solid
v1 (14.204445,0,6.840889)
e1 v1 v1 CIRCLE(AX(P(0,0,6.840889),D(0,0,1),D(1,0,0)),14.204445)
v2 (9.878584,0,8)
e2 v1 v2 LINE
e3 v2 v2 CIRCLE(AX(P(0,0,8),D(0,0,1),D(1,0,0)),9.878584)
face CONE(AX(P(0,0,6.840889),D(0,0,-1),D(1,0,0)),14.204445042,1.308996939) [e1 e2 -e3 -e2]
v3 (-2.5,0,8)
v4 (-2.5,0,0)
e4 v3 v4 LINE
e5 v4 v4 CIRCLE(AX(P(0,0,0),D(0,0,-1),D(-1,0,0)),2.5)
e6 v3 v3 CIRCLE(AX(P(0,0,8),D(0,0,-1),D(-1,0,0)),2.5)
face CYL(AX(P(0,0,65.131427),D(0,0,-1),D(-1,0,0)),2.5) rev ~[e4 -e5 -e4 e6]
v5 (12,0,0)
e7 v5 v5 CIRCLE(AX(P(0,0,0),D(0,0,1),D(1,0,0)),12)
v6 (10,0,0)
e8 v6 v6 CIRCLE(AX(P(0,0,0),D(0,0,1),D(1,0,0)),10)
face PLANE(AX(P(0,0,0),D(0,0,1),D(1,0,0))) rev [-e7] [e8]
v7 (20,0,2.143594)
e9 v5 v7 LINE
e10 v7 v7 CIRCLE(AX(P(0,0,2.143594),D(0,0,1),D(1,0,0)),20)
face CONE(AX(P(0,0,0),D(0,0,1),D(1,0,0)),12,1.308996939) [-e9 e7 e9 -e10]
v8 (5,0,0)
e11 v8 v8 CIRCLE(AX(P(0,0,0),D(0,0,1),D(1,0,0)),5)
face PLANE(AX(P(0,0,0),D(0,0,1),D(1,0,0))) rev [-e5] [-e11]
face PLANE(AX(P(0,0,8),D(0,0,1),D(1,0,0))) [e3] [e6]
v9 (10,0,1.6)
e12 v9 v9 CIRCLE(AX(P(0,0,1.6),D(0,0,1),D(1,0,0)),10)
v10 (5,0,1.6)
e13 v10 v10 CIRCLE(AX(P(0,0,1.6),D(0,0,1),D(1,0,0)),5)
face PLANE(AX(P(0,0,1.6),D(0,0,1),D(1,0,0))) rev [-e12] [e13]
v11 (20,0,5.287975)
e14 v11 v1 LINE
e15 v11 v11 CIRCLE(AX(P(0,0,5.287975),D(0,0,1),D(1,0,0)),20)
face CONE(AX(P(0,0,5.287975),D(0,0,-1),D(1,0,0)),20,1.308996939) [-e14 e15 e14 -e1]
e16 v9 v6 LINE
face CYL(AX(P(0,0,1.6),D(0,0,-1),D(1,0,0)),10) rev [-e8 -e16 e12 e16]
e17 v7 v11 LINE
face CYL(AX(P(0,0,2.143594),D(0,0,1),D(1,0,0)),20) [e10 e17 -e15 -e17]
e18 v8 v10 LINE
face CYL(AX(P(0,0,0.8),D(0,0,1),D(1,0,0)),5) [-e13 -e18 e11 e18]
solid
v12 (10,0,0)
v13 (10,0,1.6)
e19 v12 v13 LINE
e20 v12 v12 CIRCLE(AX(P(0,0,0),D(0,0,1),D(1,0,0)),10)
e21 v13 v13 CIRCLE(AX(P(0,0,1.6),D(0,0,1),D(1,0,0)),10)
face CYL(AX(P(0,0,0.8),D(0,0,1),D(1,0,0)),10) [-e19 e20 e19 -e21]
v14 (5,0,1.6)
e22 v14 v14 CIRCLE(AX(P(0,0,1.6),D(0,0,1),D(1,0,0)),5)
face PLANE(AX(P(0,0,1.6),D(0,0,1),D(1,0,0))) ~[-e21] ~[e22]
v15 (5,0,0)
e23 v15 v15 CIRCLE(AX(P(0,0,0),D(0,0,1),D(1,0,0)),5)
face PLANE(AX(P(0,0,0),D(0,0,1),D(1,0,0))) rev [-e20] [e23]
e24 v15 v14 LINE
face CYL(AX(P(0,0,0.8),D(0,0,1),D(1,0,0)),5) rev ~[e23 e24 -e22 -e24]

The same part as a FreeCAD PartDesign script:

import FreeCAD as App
import Part
import Sketcher

V = App.Vector
Q = App.Units.Quantity


def add_polygon(sketch, points):
    """Adds a closed chain of lines whose ends are joined by coincident constraints."""
    first, n = sketch.GeometryCount, len(points)
    for a, b in zip(points, points[1:] + points[:1]):
        sketch.addGeometry(Part.LineSegment(App.Vector(*a, 0), App.Vector(*b, 0)), False)
    for i in range(n):
        sketch.addConstraint(Sketcher.Constraint("Coincident", first + i, 2, first + (i + 1) % n, 1))

doc = App.newDocument("Part")
body = doc.addObject("PartDesign::Body", "Body")

# Sketch on XZ plane
sketch1 = doc.addObject("Sketcher::SketchObject", "Sketch")
body.addObject(sketch1)
sketch1.AttachmentSupport = (doc.XZ_Plane, [""])
sketch1.MapMode = "FlatFace"
add_polygon(sketch1, [(5, 1.6), (5, 0), (10, 0), (10, 1.6)])  # lines 0-3
sketch1.addConstraint([
    Sketcher.Constraint("Vertical", 0),
    Sketcher.Constraint("Horizontal", 1),
    Sketcher.Constraint("Vertical", 2),
    Sketcher.Constraint("Horizontal", 3),
    Sketcher.Constraint("PointOnObject", 0, 2, -1),
    Sketcher.Constraint("DistanceX", 1, 1, 1, 2, Q("5 mm")),
    Sketcher.Constraint("DistanceY", 0, 2, 0, 1, Q("1.6 mm")),
    Sketcher.Constraint("DistanceX", -1, 1, 0, 2, Q("5 mm")),
])
revolution = doc.addObject("PartDesign::Revolution", "Revolution")
body.addObject(revolution)
revolution.Profile = sketch1
revolution.ReferenceAxis = (sketch1, ["V_Axis"])
revolution.Angle = 360
body2 = doc.addObject("PartDesign::Body", "Body001")

# Sketch on XZ plane
sketch2 = doc.addObject("Sketcher::SketchObject", "Sketch001")
body2.addObject(sketch2)
sketch2.AttachmentSupport = (doc.getObject("XZ_Plane001"), [""])
sketch2.MapMode = "FlatFace"
add_polygon(sketch2, [(0, 8), (0, 0), (5, 0), (5, 1.6), (10, 1.6), (10, 0), (12, 0), (20, 2.1), (20, 5.3), (14.2, 6.8), (9.9, 8)])  # lines 0-10
sketch2.addConstraint([
    Sketcher.Constraint("Vertical", 0),
    Sketcher.Constraint("Horizontal", 1),
    Sketcher.Constraint("Vertical", 2),
    Sketcher.Constraint("Horizontal", 3),
    Sketcher.Constraint("Vertical", 4),
    Sketcher.Constraint("Horizontal", 5),
    Sketcher.Constraint("Vertical", 7),
    Sketcher.Constraint("Horizontal", 10),
    Sketcher.Constraint("Coincident", 0, 2, -1, 1),
    Sketcher.Constraint("PointOnObject", 4, 2, -1),
    Sketcher.Constraint("Parallel", 8, 9),
    Sketcher.Constraint("Equal", 1, 3),
    Sketcher.Constraint("DistanceX", 1, 1, 1, 2, Q("5 mm")),
    Sketcher.Constraint("DistanceX", 5, 1, 5, 2, Q("2 mm")),
    Sketcher.Constraint("DistanceY", 0, 2, 0, 1, Q("8 mm")),
    Sketcher.Constraint("Angle", 6, Q("15 deg")),
    Sketcher.Constraint("Angle", 8, Q("165 deg")),
    Sketcher.Constraint("Distance", 8, Q("6 mm")),
    Sketcher.Constraint("DistanceY", 2, 1, 2, 2, Q("1.6 mm")),
    Sketcher.Constraint("DistanceX", -1, 1, 6, 2, Q("20 mm")),
    Sketcher.Constraint("DistanceY", 7, 1, 7, 2, Q("3.144381 mm")),
])
revolution2 = doc.addObject("PartDesign::Revolution", "Revolution001")
body2.addObject(revolution2)
revolution2.Profile = sketch2
revolution2.ReferenceAxis = (sketch2, ["V_Axis"])
revolution2.Angle = 360

# Sketch on XY plane
sketch3 = doc.addObject("Sketcher::SketchObject", "Sketch002")
body2.addObject(sketch3)
sketch3.AttachmentSupport = (doc.getObject("XY_Plane001"), [""])
sketch3.MapMode = "FlatFace"
sketch3.AttachmentOffset = App.Placement(V(0, 0, 8), App.Rotation())
sketch3.addGeometry(Part.Circle(V(0, 0, 0), V(0, 0, 1), 2.5), False)
sketch3.addConstraint([
    Sketcher.Constraint("Coincident", 0, 3, -1, 1),
    Sketcher.Constraint("Diameter", 0, Q("5 mm")),
])
doc.recompute()
hole = doc.addObject("PartDesign::Hole", "Hole")
body2.addObject(hole)
hole.Profile = sketch3
hole.ThreadType = "None"
hole.Diameter = 5
hole.DepthType = "ThroughAll"

doc.recompute()
